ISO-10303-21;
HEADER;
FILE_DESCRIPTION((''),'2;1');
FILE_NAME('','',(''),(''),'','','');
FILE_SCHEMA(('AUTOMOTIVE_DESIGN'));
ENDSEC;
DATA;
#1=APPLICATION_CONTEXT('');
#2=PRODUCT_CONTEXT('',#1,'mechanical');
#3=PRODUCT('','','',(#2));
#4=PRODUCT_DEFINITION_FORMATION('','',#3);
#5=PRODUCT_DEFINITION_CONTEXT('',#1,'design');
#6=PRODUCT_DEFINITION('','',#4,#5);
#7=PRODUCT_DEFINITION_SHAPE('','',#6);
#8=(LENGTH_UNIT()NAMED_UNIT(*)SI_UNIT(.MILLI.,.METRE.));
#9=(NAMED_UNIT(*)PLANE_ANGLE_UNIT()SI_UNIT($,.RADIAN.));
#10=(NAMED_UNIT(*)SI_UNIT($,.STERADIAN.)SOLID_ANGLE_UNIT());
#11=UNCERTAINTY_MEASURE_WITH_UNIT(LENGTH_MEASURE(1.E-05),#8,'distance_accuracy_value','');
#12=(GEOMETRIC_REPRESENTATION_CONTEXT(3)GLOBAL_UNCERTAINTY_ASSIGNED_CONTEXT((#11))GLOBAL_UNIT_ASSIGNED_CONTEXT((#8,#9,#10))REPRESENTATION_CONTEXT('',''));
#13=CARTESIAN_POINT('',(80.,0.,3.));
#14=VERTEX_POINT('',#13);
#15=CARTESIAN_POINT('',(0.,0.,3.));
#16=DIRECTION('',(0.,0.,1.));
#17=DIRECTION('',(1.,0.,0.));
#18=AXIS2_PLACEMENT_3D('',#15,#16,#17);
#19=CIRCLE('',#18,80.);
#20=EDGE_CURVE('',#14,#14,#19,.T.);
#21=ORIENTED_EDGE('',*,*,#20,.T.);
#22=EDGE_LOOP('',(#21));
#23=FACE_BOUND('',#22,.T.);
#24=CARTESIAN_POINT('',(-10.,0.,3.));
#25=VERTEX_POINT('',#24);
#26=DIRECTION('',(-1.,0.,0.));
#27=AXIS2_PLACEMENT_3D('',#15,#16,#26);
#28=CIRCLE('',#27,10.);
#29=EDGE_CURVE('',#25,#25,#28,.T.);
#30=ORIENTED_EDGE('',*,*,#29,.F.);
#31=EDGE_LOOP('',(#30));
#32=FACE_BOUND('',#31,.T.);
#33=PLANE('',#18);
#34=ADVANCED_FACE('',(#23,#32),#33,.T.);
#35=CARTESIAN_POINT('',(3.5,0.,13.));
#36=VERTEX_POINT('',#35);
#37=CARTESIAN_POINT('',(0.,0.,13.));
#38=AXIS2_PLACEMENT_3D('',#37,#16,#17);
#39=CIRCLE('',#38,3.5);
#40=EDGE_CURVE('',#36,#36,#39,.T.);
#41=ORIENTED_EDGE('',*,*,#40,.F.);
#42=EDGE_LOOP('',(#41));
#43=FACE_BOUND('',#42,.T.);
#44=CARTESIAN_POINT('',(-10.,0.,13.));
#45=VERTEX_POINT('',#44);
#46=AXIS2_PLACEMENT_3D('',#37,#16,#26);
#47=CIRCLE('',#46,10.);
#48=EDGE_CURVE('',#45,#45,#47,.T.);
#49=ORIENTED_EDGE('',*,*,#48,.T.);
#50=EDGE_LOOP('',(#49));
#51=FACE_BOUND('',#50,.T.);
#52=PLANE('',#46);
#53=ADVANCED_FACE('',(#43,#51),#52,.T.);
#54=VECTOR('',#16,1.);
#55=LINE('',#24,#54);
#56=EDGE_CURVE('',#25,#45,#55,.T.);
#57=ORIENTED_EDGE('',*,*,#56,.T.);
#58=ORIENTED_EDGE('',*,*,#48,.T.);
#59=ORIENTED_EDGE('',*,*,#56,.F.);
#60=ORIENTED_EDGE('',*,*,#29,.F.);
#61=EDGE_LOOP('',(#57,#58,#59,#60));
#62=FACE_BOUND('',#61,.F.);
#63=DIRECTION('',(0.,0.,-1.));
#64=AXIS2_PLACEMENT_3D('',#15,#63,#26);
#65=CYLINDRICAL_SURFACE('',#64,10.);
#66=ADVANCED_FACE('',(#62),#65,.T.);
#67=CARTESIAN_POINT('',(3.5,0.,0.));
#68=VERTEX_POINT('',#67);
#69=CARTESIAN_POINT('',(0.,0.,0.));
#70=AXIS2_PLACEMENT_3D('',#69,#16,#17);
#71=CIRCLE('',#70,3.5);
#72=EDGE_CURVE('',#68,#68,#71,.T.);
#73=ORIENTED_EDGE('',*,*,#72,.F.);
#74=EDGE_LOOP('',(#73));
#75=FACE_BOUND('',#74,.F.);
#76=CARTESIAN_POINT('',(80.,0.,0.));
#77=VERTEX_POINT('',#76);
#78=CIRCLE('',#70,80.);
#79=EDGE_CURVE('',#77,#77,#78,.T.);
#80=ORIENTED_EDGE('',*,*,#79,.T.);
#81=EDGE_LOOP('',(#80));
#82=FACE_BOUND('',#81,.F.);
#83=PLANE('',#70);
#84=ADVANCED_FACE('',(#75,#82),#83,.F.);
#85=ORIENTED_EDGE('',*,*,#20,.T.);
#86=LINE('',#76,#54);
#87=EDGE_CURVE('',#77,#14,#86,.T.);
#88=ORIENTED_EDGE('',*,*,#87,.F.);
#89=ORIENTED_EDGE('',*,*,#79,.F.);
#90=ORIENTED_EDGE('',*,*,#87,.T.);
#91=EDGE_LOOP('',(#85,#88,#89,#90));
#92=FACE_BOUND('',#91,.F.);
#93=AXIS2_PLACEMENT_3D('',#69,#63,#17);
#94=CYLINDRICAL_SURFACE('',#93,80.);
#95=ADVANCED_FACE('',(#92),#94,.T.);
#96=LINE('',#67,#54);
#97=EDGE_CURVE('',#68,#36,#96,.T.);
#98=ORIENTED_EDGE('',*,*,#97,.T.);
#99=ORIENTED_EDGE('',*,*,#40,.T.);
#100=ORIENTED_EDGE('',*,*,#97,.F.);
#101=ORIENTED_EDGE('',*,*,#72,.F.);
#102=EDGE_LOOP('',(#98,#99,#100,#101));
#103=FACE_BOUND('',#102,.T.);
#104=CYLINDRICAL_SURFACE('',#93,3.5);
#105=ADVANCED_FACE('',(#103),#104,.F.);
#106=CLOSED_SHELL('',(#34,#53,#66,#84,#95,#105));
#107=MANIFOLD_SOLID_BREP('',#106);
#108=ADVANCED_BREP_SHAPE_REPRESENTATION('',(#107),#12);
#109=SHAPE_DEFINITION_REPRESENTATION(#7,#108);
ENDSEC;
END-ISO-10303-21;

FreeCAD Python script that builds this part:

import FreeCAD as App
import Part
import Sketcher

V = App.Vector

doc = App.newDocument("Part")
body = doc.addObject("PartDesign::Body", "Body")

# Sketch on XY plane
sketch1 = body.newObject("Sketcher::SketchObject", "Sketch")
sketch1.AttachmentSupport = (doc.getObject("XY_Plane"), [""])
sketch1.MapMode = "FlatFace"
sketch1.addGeometry(Part.Circle(V(0, 0, 0), V(0, 0, 1), 80), False)
sketch1.addConstraint(Sketcher.Constraint("Coincident", 0, 3, -1, 1))
sketch1.addConstraint(Sketcher.Constraint("Diameter", 0, 160.0))
pad1 = body.newObject("PartDesign::Pad", "Pad")
pad1.Profile = sketch1
pad1.Length = 3

# Sketch on XY plane
sketch2 = body.newObject("Sketcher::SketchObject", "Sketch001")
sketch2.AttachmentSupport = (doc.getObject("XY_Plane"), [""])
sketch2.MapMode = "FlatFace"
sketch2.AttachmentOffset = App.Placement(V(0, 0, 3), App.Rotation())
sketch2.addGeometry(Part.Circle(V(0, 0, 0), V(0, 0, 1), 10), False)
sketch2.addConstraint(Sketcher.Constraint("Coincident", 0, 3, -1, 1))
sketch2.addConstraint(Sketcher.Constraint("Diameter", 0, 20.0))
pad2 = body.newObject("PartDesign::Pad", "Pad001")
pad2.Profile = sketch2
pad2.Length = 10

# Sketch on XY plane
sketch3 = body.newObject("Sketcher::SketchObject", "Sketch002")
sketch3.AttachmentSupport = (doc.getObject("XY_Plane"), [""])
sketch3.MapMode = "FlatFace"
sketch3.addGeometry(Part.Circle(V(0, 0, 0), V(0, 0, 1), 3.5), False)
sketch3.addConstraint(Sketcher.Constraint("Coincident", 0, 3, -1, 1))
sketch3.addConstraint(Sketcher.Constraint("Diameter", 0, 7.0))
pocket1 = body.newObject("PartDesign::Pocket", "Pocket")
pocket1.Profile = sketch3
pocket1.Length = 13
pocket1.Reversed = True

doc.recompute()
